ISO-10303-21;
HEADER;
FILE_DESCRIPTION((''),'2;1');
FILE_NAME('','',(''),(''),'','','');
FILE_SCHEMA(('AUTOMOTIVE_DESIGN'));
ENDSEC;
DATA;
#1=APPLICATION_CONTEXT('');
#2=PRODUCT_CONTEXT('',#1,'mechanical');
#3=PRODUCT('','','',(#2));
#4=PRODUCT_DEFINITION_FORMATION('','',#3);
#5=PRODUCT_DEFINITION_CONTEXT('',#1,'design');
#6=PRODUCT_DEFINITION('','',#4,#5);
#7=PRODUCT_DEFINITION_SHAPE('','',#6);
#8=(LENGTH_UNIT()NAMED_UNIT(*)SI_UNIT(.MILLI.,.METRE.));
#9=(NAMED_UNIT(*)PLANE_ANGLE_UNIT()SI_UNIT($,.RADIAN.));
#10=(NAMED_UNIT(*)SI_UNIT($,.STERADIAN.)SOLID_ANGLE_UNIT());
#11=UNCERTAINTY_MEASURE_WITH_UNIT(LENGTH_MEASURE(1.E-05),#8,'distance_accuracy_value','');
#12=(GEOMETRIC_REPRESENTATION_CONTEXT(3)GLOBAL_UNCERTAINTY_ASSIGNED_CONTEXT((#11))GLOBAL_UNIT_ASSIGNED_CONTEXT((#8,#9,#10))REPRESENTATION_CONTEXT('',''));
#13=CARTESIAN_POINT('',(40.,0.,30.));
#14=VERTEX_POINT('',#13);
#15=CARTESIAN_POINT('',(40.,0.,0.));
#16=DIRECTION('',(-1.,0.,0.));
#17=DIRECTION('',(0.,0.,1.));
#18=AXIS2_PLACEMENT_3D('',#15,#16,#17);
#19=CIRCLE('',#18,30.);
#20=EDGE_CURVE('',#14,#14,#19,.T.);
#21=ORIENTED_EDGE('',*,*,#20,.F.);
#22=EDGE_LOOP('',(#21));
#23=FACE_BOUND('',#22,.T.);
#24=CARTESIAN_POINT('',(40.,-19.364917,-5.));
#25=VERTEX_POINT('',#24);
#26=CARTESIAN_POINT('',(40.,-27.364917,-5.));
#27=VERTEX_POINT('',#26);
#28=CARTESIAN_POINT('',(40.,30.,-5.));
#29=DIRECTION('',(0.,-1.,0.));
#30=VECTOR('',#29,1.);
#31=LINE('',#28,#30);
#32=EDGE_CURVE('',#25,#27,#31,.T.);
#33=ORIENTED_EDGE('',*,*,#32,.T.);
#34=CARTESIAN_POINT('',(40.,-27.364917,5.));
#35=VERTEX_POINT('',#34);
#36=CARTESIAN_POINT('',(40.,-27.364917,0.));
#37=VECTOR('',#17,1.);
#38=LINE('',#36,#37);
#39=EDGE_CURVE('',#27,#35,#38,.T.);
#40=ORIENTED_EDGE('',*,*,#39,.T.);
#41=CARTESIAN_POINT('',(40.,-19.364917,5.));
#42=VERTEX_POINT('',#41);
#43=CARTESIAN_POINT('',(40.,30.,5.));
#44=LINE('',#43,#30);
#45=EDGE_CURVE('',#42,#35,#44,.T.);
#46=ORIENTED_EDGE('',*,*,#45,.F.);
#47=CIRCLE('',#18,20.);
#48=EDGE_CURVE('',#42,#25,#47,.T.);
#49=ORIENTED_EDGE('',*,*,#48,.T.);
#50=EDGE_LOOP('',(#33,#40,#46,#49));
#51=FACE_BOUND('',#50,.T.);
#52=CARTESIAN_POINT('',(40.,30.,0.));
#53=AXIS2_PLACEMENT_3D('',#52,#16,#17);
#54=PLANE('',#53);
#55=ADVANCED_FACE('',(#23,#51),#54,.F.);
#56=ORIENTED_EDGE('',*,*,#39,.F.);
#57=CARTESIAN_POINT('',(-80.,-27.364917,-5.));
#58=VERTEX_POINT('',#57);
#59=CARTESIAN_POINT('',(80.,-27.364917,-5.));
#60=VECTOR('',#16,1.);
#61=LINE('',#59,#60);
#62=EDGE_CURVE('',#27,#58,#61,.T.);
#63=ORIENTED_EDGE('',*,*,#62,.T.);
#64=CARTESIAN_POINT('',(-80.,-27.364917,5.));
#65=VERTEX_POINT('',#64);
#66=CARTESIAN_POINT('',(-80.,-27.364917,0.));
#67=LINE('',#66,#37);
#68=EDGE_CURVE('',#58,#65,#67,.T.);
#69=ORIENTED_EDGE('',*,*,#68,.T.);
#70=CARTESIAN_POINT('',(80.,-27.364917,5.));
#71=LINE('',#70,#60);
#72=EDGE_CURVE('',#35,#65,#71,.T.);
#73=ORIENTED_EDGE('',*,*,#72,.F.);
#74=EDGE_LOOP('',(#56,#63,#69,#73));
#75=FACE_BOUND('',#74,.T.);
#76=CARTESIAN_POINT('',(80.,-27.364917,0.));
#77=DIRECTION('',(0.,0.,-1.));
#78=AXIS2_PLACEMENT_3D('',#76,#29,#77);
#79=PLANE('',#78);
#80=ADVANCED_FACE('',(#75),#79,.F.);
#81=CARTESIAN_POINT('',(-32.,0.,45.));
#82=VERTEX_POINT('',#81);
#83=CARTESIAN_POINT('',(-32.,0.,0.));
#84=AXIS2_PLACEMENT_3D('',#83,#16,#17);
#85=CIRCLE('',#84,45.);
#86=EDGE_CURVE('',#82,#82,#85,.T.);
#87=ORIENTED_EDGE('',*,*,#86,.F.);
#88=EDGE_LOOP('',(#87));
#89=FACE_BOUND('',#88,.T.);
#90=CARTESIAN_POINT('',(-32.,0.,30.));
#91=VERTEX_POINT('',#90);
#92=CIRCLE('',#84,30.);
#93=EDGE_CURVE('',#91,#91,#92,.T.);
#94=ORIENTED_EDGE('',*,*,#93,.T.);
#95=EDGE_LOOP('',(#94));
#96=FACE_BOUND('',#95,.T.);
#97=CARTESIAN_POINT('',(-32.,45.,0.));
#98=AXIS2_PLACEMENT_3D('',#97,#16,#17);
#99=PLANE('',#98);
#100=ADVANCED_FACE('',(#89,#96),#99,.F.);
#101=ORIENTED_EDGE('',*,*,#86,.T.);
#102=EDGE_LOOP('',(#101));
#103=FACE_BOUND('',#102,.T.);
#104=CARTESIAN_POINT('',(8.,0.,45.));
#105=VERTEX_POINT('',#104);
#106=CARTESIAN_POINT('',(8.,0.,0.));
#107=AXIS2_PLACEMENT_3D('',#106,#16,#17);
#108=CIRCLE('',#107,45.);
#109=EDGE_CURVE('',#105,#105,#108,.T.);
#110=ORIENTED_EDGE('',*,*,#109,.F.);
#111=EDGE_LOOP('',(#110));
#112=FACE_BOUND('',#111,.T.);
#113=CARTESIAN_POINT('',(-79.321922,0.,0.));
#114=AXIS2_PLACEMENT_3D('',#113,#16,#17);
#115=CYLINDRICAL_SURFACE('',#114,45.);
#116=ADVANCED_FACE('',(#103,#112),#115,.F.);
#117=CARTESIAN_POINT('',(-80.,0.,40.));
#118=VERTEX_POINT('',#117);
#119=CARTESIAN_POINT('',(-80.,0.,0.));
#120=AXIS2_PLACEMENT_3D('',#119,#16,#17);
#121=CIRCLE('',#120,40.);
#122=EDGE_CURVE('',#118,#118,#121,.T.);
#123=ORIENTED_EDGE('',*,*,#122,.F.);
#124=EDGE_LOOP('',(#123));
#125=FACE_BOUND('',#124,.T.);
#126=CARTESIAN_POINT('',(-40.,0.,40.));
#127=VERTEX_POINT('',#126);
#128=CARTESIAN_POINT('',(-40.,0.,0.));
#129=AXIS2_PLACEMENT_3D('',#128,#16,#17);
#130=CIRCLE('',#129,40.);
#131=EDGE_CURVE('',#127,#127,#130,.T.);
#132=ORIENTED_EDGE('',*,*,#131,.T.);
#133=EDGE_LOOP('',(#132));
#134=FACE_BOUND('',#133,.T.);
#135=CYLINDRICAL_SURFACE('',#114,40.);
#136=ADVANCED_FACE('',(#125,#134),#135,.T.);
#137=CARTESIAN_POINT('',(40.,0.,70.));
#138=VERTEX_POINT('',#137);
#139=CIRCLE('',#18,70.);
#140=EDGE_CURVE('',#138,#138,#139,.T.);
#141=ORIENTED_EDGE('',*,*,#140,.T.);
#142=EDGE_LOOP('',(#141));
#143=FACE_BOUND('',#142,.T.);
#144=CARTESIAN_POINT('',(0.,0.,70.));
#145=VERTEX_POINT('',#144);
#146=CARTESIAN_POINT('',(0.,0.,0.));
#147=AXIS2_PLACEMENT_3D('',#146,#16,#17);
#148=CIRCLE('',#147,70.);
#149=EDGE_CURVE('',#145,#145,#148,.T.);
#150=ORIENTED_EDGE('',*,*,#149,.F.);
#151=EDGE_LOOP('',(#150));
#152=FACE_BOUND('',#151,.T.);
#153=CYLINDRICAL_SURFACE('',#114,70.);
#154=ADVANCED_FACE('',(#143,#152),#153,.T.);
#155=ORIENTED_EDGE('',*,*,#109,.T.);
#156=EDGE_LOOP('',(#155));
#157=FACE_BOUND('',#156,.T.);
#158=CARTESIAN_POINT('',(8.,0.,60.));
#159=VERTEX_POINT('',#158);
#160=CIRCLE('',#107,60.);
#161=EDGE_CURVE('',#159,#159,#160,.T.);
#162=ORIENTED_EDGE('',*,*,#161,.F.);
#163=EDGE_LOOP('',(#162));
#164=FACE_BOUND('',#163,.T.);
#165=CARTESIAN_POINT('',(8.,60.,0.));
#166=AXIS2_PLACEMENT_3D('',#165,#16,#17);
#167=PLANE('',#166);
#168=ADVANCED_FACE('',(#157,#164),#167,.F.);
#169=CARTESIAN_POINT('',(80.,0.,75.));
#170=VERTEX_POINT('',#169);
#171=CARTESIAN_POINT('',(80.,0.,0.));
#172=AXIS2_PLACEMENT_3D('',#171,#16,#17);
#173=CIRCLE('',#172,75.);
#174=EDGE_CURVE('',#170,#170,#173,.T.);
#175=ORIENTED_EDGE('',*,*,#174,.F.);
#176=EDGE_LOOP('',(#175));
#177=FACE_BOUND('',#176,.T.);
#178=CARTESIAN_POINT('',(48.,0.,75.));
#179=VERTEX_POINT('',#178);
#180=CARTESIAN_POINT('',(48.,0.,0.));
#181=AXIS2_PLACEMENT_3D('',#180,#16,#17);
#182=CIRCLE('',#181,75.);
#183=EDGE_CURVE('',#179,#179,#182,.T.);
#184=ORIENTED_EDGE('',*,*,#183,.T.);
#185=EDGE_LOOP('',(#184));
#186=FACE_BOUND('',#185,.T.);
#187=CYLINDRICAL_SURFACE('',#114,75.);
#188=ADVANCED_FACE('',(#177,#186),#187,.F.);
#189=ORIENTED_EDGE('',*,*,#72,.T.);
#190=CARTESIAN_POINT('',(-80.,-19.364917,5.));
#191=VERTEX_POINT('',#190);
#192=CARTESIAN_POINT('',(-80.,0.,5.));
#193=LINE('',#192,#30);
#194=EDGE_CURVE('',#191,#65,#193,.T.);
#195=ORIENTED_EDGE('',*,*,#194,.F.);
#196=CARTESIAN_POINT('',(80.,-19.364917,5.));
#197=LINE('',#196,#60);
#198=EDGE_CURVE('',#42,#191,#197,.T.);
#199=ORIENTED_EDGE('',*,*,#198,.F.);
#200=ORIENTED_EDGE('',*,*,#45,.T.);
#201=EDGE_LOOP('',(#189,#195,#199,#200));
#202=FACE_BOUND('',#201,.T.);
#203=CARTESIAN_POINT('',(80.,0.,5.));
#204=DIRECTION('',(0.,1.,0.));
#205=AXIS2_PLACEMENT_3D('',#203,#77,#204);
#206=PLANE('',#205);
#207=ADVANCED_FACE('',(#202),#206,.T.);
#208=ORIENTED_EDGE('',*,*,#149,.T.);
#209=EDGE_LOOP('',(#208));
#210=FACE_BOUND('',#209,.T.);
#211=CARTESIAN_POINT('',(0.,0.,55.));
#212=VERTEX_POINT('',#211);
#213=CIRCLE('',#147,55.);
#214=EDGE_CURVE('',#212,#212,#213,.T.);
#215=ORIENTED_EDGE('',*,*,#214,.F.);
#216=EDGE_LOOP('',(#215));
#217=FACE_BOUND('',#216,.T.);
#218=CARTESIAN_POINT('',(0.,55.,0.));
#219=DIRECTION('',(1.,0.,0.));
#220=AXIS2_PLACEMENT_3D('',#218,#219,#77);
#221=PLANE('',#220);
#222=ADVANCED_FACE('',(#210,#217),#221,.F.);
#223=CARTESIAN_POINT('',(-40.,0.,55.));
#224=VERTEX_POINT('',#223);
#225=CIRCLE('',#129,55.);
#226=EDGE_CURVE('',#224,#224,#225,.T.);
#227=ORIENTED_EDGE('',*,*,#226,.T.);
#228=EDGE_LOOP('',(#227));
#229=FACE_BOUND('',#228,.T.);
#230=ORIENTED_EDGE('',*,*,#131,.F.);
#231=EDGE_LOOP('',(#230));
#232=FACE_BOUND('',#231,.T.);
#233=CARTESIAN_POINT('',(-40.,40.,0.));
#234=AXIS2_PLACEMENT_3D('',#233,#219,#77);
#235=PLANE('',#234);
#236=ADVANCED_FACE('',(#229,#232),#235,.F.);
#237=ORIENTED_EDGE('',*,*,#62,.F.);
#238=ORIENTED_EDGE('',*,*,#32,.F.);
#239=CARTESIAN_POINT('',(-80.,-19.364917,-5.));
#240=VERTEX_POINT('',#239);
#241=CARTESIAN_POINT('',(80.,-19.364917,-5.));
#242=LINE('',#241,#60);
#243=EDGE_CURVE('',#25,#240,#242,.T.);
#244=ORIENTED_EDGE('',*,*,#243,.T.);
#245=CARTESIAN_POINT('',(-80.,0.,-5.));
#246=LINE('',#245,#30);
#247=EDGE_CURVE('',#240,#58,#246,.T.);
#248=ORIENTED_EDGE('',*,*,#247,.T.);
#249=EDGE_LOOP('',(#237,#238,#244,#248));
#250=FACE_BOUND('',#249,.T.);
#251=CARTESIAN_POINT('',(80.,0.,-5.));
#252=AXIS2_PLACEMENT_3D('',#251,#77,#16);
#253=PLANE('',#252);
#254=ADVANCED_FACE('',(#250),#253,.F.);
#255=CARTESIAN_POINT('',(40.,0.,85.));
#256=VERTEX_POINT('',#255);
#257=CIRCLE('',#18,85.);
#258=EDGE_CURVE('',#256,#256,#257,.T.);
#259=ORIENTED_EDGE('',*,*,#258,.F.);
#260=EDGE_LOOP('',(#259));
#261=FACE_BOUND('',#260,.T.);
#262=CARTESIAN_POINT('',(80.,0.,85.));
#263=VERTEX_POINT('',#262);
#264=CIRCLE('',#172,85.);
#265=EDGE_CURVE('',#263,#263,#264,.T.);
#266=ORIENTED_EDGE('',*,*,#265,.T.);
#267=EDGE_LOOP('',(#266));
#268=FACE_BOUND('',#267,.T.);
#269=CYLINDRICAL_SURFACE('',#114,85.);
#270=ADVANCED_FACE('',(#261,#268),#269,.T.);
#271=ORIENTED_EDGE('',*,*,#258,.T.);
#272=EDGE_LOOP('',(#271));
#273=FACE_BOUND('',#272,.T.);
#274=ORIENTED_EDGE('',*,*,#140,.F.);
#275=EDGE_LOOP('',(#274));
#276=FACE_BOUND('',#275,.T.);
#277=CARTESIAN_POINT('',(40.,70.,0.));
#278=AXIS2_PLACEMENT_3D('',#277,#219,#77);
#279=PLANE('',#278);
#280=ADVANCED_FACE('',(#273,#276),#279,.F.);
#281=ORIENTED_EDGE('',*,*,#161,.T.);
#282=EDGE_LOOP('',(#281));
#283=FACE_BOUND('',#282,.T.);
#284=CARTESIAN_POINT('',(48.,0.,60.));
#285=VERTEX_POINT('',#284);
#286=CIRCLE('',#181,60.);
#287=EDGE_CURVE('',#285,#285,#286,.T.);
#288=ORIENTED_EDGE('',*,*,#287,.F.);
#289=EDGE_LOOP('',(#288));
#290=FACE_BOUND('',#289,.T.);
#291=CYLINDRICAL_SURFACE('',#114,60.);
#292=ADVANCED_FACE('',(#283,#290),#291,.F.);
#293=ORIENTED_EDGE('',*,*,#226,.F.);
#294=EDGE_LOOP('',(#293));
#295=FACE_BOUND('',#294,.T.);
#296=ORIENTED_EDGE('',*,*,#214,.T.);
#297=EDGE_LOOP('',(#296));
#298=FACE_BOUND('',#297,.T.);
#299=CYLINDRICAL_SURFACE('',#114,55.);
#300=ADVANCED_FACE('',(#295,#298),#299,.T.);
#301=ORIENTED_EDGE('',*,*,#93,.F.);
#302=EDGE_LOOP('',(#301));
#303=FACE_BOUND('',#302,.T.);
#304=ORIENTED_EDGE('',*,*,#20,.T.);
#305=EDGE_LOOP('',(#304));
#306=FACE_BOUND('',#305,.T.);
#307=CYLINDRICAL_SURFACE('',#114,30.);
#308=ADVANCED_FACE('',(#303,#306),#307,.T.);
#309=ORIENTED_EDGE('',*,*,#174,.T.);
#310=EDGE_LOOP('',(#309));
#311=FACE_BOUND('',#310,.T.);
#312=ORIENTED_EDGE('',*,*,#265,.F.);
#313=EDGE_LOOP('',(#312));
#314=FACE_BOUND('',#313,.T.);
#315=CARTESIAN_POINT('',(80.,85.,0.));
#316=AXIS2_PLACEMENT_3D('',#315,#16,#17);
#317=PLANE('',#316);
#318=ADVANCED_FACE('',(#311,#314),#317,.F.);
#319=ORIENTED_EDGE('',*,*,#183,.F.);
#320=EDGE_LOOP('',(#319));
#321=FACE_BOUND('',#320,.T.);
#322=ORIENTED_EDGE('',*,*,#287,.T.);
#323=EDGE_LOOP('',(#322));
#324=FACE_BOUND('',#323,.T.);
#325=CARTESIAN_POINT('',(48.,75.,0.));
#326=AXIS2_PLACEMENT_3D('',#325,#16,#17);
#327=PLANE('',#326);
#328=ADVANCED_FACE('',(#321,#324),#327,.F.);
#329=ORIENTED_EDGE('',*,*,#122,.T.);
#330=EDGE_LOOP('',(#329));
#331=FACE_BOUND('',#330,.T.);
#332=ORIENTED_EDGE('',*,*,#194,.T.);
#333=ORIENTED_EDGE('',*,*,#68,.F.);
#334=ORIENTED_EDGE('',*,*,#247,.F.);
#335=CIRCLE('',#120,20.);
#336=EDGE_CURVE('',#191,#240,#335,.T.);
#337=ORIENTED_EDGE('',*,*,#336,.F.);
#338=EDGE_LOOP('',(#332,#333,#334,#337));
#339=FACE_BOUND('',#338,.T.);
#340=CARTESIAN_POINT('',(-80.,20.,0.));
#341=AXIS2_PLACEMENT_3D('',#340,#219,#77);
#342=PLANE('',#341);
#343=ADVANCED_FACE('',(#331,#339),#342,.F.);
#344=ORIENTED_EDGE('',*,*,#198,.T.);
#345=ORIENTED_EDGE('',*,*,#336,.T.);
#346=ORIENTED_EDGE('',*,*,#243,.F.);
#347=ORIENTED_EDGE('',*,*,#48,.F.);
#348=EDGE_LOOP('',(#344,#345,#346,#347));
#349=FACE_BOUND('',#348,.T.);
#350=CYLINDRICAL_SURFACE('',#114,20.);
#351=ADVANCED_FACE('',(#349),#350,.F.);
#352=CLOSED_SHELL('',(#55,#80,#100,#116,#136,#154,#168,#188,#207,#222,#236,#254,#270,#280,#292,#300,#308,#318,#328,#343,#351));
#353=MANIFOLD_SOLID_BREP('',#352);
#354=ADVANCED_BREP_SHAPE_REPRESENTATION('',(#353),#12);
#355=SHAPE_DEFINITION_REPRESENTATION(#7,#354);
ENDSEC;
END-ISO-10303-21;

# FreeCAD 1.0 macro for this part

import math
import FreeCAD as App
import Part
import Sketcher
from FreeCAD import Vector
Q = App.Units.Quantity

doc = App.newDocument("Part")
body = doc.addObject("PartDesign::Body", "Body")

# Sketch on XY plane
sketch1 = body.newObject("Sketcher::SketchObject", "Sketch")
sketch1.AttachmentSupport = (doc.getObject("XY_Plane"), [""])
sketch1.MapMode = "FlatFace"
sketch1.addGeometry(Part.LineSegment(Vector(-80, 40, 0), Vector(-80, 20, 0)), False)
sketch1.addGeometry(Part.LineSegment(Vector(-80, 20, 0), Vector(40, 20, 0)), False)
sketch1.addGeometry(Part.LineSegment(Vector(40, 20, 0), Vector(40, 30, 0)), False)
sketch1.addGeometry(Part.LineSegment(Vector(40, 30, 0), Vector(-32, 30, 0)), False)
sketch1.addGeometry(Part.LineSegment(Vector(-32, 30, 0), Vector(-32, 45, 0)), False)
sketch1.addGeometry(Part.LineSegment(Vector(-32, 45, 0), Vector(8, 45, 0)), False)
sketch1.addGeometry(Part.LineSegment(Vector(8, 45, 0), Vector(8, 60, 0)), False)
sketch1.addGeometry(Part.LineSegment(Vector(8, 60, 0), Vector(48, 60, 0)), False)
sketch1.addGeometry(Part.LineSegment(Vector(48, 60, 0), Vector(48, 75, 0)), False)
sketch1.addGeometry(Part.LineSegment(Vector(48, 75, 0), Vector(80, 75, 0)), False)
sketch1.addGeometry(Part.LineSegment(Vector(80, 75, 0), Vector(80, 85, 0)), False)
sketch1.addGeometry(Part.LineSegment(Vector(80, 85, 0), Vector(40, 85, 0)), False)
sketch1.addGeometry(Part.LineSegment(Vector(40, 85, 0), Vector(40, 70, 0)), False)
sketch1.addGeometry(Part.LineSegment(Vector(40, 70, 0), Vector(0, 70, 0)), False)
sketch1.addGeometry(Part.LineSegment(Vector(0, 70, 0), Vector(0, 55, 0)), False)
sketch1.addGeometry(Part.LineSegment(Vector(0, 55, 0), Vector(-40, 55, 0)), False)
sketch1.addGeometry(Part.LineSegment(Vector(-40, 55, 0), Vector(-40, 40, 0)), False)
sketch1.addGeometry(Part.LineSegment(Vector(-40, 40, 0), Vector(-80, 40, 0)), False)
sketch1.addConstraint(Sketcher.Constraint("Coincident", 0, 2, 1, 1))
sketch1.addConstraint(Sketcher.Constraint("Coincident", 1, 2, 2, 1))
sketch1.addConstraint(Sketcher.Constraint("Coincident", 2, 2, 3, 1))
sketch1.addConstraint(Sketcher.Constraint("Coincident", 3, 2, 4, 1))
sketch1.addConstraint(Sketcher.Constraint("Coincident", 4, 2, 5, 1))
sketch1.addConstraint(Sketcher.Constraint("Coincident", 5, 2, 6, 1))
sketch1.addConstraint(Sketcher.Constraint("Coincident", 6, 2, 7, 1))
sketch1.addConstraint(Sketcher.Constraint("Coincident", 7, 2, 8, 1))
sketch1.addConstraint(Sketcher.Constraint("Coincident", 8, 2, 9, 1))
sketch1.addConstraint(Sketcher.Constraint("Coincident", 9, 2, 10, 1))
sketch1.addConstraint(Sketcher.Constraint("Coincident", 10, 2, 11, 1))
sketch1.addConstraint(Sketcher.Constraint("Coincident", 11, 2, 12, 1))
sketch1.addConstraint(Sketcher.Constraint("Coincident", 12, 2, 13, 1))
sketch1.addConstraint(Sketcher.Constraint("Coincident", 13, 2, 14, 1))
sketch1.addConstraint(Sketcher.Constraint("Coincident", 14, 2, 15, 1))
sketch1.addConstraint(Sketcher.Constraint("Coincident", 15, 2, 16, 1))
sketch1.addConstraint(Sketcher.Constraint("Coincident", 16, 2, 17, 1))
sketch1.addConstraint(Sketcher.Constraint("Coincident", 17, 2, 0, 1))
sketch1.addConstraint(Sketcher.Constraint("Vertical", 0))
sketch1.addConstraint(Sketcher.Constraint("Horizontal", 1))
sketch1.addConstraint(Sketcher.Constraint("Vertical", 2))
sketch1.addConstraint(Sketcher.Constraint("Horizontal", 3))
sketch1.addConstraint(Sketcher.Constraint("Vertical", 4))
sketch1.addConstraint(Sketcher.Constraint("Horizontal", 5))
sketch1.addConstraint(Sketcher.Constraint("Vertical", 6))
sketch1.addConstraint(Sketcher.Constraint("Horizontal", 7))
sketch1.addConstraint(Sketcher.Constraint("Vertical", 8))
sketch1.addConstraint(Sketcher.Constraint("Horizontal", 9))
sketch1.addConstraint(Sketcher.Constraint("Vertical", 10))
sketch1.addConstraint(Sketcher.Constraint("Horizontal", 11))
sketch1.addConstraint(Sketcher.Constraint("Vertical", 12))
sketch1.addConstraint(Sketcher.Constraint("Horizontal", 13))
sketch1.addConstraint(Sketcher.Constraint("Vertical", 14))
sketch1.addConstraint(Sketcher.Constraint("Horizontal", 15))
sketch1.addConstraint(Sketcher.Constraint("Vertical", 16))
sketch1.addConstraint(Sketcher.Constraint("Horizontal", 17))
sketch1.addConstraint(Sketcher.Constraint("PointOnObject", 13, 2, -2))
sketch1.addConstraint(Sketcher.Constraint("Vertical", 2, 2, 11, 2))
sketch1.addConstraint(Sketcher.Constraint("Equal", 5, 7))
sketch1.addConstraint(Sketcher.Constraint("Equal", 7, 11))
sketch1.addConstraint(Sketcher.Constraint("Equal", 11, 13))
sketch1.addConstraint(Sketcher.Constraint("Equal", 13, 15))
sketch1.addConstraint(Sketcher.Constraint("Equal", 15, 17))
sketch1.addConstraint(Sketcher.Constraint("Equal", 4, 6))
sketch1.addConstraint(Sketcher.Constraint("Equal", 6, 8))
sketch1.addConstraint(Sketcher.Constraint("Equal", 2, 10))
sketch1.addConstraint(Sketcher.Constraint("Equal", 8, 12))
sketch1.addConstraint(Sketcher.Constraint("Equal", 12, 14))
sketch1.addConstraint(Sketcher.Constraint("Equal", 14, 16))
sketch1.addConstraint(Sketcher.Constraint("DistanceX", 1, 1, 1, 2, Q("120 mm")))
sketch1.addConstraint(Sketcher.Constraint("DistanceX", 3, 2, 3, 1, Q("72 mm")))
sketch1.addConstraint(Sketcher.Constraint("DistanceY", 0, 2, 0, 1, Q("20 mm")))
sketch1.addConstraint(Sketcher.Constraint("DistanceY", 4, 1, 4, 2, Q("15 mm")))
sketch1.addConstraint(Sketcher.Constraint("DistanceY", -1, 1, 0, 2, Q("20 mm")))
revolution = body.newObject("PartDesign::Revolution", "Revolution")
revolution.Profile = sketch1
revolution.ReferenceAxis = (sketch1, ["H_Axis"])
revolution.Angle = 360

# Sketch on YZ plane
sketch2 = body.newObject("Sketcher::SketchObject", "Sketch001")
sketch2.AttachmentSupport = (doc.getObject("YZ_Plane"), [""])
sketch2.MapMode = "FlatFace"
sketch2.AttachmentOffset = App.Placement(Vector(0, 0, -80), App.Rotation())
sketch2.addGeometry(Part.LineSegment(Vector(-19, -5, 0), Vector(-27, -5, 0)), False)
sketch2.addGeometry(Part.LineSegment(Vector(-27, -5, 0), Vector(-27, 5, 0)), False)
sketch2.addGeometry(Part.LineSegment(Vector(-27, 5, 0), Vector(-19, 5, 0)), False)
sketch2.addGeometry(Part.ArcOfCircle(Part.Circle(Vector(0, 0, 0), Vector(0, 0, 1), 20), math.radians(-166), math.radians(166)), False)
sketch2.addConstraint(Sketcher.Constraint("Coincident", 0, 2, 1, 1))
sketch2.addConstraint(Sketcher.Constraint("Coincident", 1, 2, 2, 1))
sketch2.addConstraint(Sketcher.Constraint("Coincident", 2, 2, 3, 2))
sketch2.addConstraint(Sketcher.Constraint("Coincident", 3, 1, 0, 1))
sketch2.addConstraint(Sketcher.Constraint("Horizontal", 0))
sketch2.addConstraint(Sketcher.Constraint("Vertical", 1))
sketch2.addConstraint(Sketcher.Constraint("Horizontal", 2))
sketch2.addConstraint(Sketcher.Constraint("Coincident", 3, 3, -1, 1))
sketch2.addConstraint(Sketcher.Constraint("Vertical", 2, 2, 3, 1))
sketch2.addConstraint(Sketcher.Constraint("Radius", 3, Q("20 mm")))
sketch2.addConstraint(Sketcher.Constraint("DistanceX", 0, 2, 0, 1, Q("8 mm")))
sketch2.addConstraint(Sketcher.Constraint("DistanceY", 1, 1, 1, 2, Q("10 mm")))
pocket1 = body.newObject("PartDesign::Pocket", "Pocket")
pocket1.Profile = sketch2
pocket1.Type = "ThroughAll"
pocket1.Reversed = True

doc.recompute()
